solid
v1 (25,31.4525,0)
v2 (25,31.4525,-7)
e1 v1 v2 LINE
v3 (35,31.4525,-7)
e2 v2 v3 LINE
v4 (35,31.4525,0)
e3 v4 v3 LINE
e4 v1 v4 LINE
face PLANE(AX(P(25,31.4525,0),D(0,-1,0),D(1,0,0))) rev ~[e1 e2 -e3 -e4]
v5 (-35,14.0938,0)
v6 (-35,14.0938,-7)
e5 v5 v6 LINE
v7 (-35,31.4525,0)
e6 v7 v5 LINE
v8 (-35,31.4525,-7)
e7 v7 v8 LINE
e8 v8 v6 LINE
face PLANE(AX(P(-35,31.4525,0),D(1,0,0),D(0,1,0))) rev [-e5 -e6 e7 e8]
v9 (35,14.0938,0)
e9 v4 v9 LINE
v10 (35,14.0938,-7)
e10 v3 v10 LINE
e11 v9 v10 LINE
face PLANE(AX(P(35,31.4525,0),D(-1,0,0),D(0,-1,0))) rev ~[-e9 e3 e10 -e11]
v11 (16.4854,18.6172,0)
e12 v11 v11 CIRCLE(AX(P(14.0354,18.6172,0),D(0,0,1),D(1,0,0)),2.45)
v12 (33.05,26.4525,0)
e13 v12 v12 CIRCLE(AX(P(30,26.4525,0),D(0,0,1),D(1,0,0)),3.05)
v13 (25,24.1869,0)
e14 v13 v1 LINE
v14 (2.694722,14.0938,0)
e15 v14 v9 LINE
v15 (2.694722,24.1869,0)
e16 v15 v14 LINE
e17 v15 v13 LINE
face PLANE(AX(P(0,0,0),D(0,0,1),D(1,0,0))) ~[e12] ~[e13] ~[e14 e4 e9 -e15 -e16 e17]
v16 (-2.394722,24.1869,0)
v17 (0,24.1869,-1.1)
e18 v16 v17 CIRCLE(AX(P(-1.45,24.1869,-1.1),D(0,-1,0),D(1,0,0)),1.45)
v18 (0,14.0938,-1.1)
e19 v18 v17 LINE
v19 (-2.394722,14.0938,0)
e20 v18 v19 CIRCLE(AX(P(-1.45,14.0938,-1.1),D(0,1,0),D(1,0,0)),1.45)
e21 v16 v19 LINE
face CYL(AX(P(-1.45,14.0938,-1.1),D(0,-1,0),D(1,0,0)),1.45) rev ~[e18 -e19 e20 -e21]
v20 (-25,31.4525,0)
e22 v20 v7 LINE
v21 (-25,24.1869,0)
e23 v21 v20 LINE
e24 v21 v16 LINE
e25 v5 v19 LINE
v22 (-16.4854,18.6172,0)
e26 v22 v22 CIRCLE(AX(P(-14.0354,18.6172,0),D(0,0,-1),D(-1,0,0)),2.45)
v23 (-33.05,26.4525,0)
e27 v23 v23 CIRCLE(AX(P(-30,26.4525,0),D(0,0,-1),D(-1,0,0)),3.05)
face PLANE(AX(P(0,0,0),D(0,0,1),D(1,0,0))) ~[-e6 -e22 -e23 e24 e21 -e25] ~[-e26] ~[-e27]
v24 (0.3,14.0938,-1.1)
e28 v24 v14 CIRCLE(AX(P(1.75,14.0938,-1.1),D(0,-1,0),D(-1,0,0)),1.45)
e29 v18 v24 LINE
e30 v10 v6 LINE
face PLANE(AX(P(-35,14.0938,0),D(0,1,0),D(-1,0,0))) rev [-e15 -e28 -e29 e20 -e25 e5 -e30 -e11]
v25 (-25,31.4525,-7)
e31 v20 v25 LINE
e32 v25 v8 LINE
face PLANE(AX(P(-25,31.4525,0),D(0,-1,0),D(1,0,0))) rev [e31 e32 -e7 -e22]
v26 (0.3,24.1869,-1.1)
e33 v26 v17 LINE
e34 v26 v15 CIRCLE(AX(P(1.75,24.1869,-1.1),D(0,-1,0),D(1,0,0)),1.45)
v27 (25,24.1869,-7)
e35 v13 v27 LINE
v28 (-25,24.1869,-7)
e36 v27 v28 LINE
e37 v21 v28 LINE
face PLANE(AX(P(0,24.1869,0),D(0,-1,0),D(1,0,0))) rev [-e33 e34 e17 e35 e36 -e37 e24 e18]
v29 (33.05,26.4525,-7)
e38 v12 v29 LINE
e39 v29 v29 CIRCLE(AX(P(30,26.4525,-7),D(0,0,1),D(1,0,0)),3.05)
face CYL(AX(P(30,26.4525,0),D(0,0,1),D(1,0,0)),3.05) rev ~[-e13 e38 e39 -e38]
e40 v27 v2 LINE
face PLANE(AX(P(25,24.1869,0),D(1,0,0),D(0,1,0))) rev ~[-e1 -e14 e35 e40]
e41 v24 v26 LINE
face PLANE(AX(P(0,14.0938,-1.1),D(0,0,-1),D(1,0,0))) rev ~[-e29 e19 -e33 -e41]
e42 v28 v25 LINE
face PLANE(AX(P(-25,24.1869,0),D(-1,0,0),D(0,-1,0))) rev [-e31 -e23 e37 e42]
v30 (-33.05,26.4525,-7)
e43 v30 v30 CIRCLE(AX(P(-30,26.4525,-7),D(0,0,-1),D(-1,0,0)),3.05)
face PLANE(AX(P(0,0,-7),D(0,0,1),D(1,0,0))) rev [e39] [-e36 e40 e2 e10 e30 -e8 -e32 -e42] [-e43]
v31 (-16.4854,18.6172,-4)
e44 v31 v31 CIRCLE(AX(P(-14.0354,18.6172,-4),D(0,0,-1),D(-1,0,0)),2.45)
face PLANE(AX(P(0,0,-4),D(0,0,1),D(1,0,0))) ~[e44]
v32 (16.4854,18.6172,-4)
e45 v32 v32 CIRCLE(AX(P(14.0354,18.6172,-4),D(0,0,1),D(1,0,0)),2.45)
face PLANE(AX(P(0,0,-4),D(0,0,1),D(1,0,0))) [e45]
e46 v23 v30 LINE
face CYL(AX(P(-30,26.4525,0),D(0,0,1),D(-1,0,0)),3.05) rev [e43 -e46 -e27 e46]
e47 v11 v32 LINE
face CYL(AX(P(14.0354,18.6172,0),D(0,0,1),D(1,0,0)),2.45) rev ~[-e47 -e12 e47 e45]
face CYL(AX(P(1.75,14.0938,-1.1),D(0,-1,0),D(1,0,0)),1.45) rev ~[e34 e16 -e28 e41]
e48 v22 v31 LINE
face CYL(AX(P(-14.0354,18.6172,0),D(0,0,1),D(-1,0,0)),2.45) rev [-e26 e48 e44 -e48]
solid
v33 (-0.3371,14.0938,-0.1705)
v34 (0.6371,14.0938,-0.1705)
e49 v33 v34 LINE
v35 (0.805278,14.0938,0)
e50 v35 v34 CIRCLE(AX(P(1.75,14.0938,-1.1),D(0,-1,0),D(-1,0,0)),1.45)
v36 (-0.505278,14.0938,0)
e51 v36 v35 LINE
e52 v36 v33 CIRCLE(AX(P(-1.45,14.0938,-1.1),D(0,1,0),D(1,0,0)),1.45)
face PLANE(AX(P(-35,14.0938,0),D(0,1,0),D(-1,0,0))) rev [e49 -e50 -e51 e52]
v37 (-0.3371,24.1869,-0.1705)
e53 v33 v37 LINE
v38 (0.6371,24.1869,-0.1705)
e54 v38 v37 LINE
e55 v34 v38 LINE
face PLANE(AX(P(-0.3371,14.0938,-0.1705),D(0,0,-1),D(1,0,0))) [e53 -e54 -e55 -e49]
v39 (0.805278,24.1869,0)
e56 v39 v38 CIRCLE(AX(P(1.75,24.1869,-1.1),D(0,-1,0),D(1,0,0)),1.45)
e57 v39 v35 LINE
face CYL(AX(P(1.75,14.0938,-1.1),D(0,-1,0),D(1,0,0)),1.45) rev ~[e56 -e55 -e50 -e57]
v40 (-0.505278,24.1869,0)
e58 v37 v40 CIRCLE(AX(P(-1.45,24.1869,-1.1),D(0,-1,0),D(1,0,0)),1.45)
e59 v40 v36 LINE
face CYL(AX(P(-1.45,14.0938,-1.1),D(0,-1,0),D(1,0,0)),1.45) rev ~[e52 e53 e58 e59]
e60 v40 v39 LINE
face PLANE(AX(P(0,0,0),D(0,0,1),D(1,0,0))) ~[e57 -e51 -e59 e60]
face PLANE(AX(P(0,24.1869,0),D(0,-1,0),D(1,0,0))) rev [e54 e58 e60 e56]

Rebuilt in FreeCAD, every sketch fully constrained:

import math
import FreeCAD as App
import Part
import Sketcher
Q = App.Units.Quantity

doc = App.newDocument("Part")
body = doc.addObject("PartDesign::Body", "Body")
body.AllowCompound = True

# Sketch on XY plane
sketch1 = body.newObject("Sketcher::SketchObject", "Sketch")
sketch1.AttachmentSupport = (doc.getObject("XY_Plane"), [""])
sketch1.MapMode = "FlatFace"
sketch1.addGeometry([
    Part.LineSegment(App.Vector(0, 24.2, 0), App.Vector(0, 14.1, 0)),  # 0
    Part.LineSegment(App.Vector(0, 14.1, 0), App.Vector(35, 14.1, 0)),  # 1
    Part.LineSegment(App.Vector(35, 14.1, 0), App.Vector(35, 31.5, 0)),  # 2
    Part.LineSegment(App.Vector(35, 31.5, 0), App.Vector(25, 31.5, 0)),  # 3
    Part.LineSegment(App.Vector(25, 31.5, 0), App.Vector(25, 24.2, 0)),  # 4
    Part.LineSegment(App.Vector(25, 24.2, 0), App.Vector(0, 24.2, 0)),  # 5
    Part.Circle(App.Vector(30, 26.5, 0), App.Vector(0, 0, 1), 3),  # 6
], False)
sketch1.addConstraint([
    Sketcher.Constraint("Coincident", 0, 2, 1, 1),
    Sketcher.Constraint("Coincident", 1, 2, 2, 1),
    Sketcher.Constraint("Coincident", 2, 2, 3, 1),
    Sketcher.Constraint("Coincident", 3, 2, 4, 1),
    Sketcher.Constraint("Coincident", 4, 2, 5, 1),
    Sketcher.Constraint("Coincident", 5, 2, 0, 1),
    Sketcher.Constraint("Vertical", 0),
    Sketcher.Constraint("Horizontal", 1),
    Sketcher.Constraint("Vertical", 2),
    Sketcher.Constraint("Horizontal", 3),
    Sketcher.Constraint("Vertical", 4),
    Sketcher.Constraint("Horizontal", 5),
    Sketcher.Constraint("PointOnObject", 0, 2, -2),
    Sketcher.Constraint("Diameter", 6, Q("6.1 mm")),
    Sketcher.Constraint("DistanceX", 6, 3, 1, 2, Q("5 mm")),
    Sketcher.Constraint("DistanceY", 6, 3, 2, 2, Q("5 mm")),
    Sketcher.Constraint("DistanceX", 3, 2, 6, 3, Q("5 mm")),
    Sketcher.Constraint("DistanceX", 1, 1, 1, 2, Q("35 mm")),
    Sketcher.Constraint("DistanceY", 0, 2, 0, 1, Q("10.093 mm")),
    Sketcher.Constraint("DistanceY", 2, 1, 2, 2, Q("17.3587 mm")),
    Sketcher.Constraint("DistanceY", -1, 1, 4, 2, Q("24.187 mm")),
])
pad1 = body.newObject("PartDesign::Pad", "Pad")
pad1.Profile = sketch1
pad1.Length = 7
pad1.Reversed = True

# Sketch on XY plane
sketch2 = body.newObject("Sketcher::SketchObject", "Sketch001")
sketch2.AttachmentSupport = (doc.getObject("XY_Plane"), [""])
sketch2.MapMode = "FlatFace"
sketch2.addGeometry(Part.Circle(App.Vector(14, 18.6, 0), App.Vector(0, 0, 1), 2.5), False)
sketch2.addConstraint([
    Sketcher.Constraint("Diameter", 0, Q("4.9 mm")),
    Sketcher.Constraint("DistanceX", -1, 1, 0, 3, Q("14.0354 mm")),
    Sketcher.Constraint("DistanceY", -1, 1, 0, 3, Q("18.6172 mm")),
])
pocket1 = body.newObject("PartDesign::Pocket", "Pocket")
pocket1.Profile = sketch2
pocket1.Length = 4
doc.recompute()

mirrored = body.newObject("PartDesign::Mirrored", "Mirrored")
mirrored.Originals = [pad1, pocket1]
mirrored.MirrorPlane = (doc.getObject("YZ_Plane"), [""])
body.Tip = mirrored

# Sketch on XZ plane
sketch3 = body.newObject("Sketcher::SketchObject", "Sketch002")
sketch3.AttachmentSupport = (doc.getObject("XZ_Plane"), [""])
sketch3.MapMode = "FlatFace"
sketch3.AttachmentOffset = App.Placement(App.Vector(0, 0, -14.0938), App.Rotation())
sketch3.addGeometry([
    Part.ArcOfCircle(Part.Circle(App.Vector(-1.45, -1.1, 0), App.Vector(0, 0, 1), 1.45), math.radians(40), math.radians(360)),
    Part.LineSegment(App.Vector(0, -1.1, 0), App.Vector(0.3, -1.1, 0)),
    Part.ArcOfCircle(Part.Circle(App.Vector(1.75, -1.1, 0), App.Vector(0, 0, 1), 1.45), math.radians(180), math.radians(500)),
    Part.LineSegment(App.Vector(0.64, -0.17, 0), App.Vector(-0.34, -0.17, 0)),
], False)
sketch3.addConstraint([
    Sketcher.Constraint("Coincident", 0, 2, 1, 1),
    Sketcher.Constraint("Coincident", 1, 2, 2, 1),
    Sketcher.Constraint("Coincident", 2, 2, 3, 1),
    Sketcher.Constraint("Coincident", 3, 2, 0, 1),
    Sketcher.Constraint("Horizontal", 1),
    Sketcher.Constraint("Horizontal", 3),
    Sketcher.Constraint("Equal", 0, 2),
    Sketcher.Constraint("PointOnObject", 0, 2, -2),
    Sketcher.Constraint("Horizontal", 0, 3, 2, 3),
    Sketcher.Constraint("Horizontal", 2, 3, 0, 2),
    Sketcher.Constraint("Radius", 0, Q("1.45 mm")),
    Sketcher.Constraint("DistanceY", 0, 3, -1, 1, Q("1.1 mm")),
    Sketcher.Constraint("DistanceX", 0, 3, 2, 3, Q("3.2 mm")),
    Sketcher.Constraint("DistanceX", 3, 2, 3, 1, Q("0.9742 mm")),
])
pocket2 = body.newObject("PartDesign::Pocket", "Pocket001")
pocket2.Profile = sketch3
pocket2.Length = 18.3587

doc.recompute()
